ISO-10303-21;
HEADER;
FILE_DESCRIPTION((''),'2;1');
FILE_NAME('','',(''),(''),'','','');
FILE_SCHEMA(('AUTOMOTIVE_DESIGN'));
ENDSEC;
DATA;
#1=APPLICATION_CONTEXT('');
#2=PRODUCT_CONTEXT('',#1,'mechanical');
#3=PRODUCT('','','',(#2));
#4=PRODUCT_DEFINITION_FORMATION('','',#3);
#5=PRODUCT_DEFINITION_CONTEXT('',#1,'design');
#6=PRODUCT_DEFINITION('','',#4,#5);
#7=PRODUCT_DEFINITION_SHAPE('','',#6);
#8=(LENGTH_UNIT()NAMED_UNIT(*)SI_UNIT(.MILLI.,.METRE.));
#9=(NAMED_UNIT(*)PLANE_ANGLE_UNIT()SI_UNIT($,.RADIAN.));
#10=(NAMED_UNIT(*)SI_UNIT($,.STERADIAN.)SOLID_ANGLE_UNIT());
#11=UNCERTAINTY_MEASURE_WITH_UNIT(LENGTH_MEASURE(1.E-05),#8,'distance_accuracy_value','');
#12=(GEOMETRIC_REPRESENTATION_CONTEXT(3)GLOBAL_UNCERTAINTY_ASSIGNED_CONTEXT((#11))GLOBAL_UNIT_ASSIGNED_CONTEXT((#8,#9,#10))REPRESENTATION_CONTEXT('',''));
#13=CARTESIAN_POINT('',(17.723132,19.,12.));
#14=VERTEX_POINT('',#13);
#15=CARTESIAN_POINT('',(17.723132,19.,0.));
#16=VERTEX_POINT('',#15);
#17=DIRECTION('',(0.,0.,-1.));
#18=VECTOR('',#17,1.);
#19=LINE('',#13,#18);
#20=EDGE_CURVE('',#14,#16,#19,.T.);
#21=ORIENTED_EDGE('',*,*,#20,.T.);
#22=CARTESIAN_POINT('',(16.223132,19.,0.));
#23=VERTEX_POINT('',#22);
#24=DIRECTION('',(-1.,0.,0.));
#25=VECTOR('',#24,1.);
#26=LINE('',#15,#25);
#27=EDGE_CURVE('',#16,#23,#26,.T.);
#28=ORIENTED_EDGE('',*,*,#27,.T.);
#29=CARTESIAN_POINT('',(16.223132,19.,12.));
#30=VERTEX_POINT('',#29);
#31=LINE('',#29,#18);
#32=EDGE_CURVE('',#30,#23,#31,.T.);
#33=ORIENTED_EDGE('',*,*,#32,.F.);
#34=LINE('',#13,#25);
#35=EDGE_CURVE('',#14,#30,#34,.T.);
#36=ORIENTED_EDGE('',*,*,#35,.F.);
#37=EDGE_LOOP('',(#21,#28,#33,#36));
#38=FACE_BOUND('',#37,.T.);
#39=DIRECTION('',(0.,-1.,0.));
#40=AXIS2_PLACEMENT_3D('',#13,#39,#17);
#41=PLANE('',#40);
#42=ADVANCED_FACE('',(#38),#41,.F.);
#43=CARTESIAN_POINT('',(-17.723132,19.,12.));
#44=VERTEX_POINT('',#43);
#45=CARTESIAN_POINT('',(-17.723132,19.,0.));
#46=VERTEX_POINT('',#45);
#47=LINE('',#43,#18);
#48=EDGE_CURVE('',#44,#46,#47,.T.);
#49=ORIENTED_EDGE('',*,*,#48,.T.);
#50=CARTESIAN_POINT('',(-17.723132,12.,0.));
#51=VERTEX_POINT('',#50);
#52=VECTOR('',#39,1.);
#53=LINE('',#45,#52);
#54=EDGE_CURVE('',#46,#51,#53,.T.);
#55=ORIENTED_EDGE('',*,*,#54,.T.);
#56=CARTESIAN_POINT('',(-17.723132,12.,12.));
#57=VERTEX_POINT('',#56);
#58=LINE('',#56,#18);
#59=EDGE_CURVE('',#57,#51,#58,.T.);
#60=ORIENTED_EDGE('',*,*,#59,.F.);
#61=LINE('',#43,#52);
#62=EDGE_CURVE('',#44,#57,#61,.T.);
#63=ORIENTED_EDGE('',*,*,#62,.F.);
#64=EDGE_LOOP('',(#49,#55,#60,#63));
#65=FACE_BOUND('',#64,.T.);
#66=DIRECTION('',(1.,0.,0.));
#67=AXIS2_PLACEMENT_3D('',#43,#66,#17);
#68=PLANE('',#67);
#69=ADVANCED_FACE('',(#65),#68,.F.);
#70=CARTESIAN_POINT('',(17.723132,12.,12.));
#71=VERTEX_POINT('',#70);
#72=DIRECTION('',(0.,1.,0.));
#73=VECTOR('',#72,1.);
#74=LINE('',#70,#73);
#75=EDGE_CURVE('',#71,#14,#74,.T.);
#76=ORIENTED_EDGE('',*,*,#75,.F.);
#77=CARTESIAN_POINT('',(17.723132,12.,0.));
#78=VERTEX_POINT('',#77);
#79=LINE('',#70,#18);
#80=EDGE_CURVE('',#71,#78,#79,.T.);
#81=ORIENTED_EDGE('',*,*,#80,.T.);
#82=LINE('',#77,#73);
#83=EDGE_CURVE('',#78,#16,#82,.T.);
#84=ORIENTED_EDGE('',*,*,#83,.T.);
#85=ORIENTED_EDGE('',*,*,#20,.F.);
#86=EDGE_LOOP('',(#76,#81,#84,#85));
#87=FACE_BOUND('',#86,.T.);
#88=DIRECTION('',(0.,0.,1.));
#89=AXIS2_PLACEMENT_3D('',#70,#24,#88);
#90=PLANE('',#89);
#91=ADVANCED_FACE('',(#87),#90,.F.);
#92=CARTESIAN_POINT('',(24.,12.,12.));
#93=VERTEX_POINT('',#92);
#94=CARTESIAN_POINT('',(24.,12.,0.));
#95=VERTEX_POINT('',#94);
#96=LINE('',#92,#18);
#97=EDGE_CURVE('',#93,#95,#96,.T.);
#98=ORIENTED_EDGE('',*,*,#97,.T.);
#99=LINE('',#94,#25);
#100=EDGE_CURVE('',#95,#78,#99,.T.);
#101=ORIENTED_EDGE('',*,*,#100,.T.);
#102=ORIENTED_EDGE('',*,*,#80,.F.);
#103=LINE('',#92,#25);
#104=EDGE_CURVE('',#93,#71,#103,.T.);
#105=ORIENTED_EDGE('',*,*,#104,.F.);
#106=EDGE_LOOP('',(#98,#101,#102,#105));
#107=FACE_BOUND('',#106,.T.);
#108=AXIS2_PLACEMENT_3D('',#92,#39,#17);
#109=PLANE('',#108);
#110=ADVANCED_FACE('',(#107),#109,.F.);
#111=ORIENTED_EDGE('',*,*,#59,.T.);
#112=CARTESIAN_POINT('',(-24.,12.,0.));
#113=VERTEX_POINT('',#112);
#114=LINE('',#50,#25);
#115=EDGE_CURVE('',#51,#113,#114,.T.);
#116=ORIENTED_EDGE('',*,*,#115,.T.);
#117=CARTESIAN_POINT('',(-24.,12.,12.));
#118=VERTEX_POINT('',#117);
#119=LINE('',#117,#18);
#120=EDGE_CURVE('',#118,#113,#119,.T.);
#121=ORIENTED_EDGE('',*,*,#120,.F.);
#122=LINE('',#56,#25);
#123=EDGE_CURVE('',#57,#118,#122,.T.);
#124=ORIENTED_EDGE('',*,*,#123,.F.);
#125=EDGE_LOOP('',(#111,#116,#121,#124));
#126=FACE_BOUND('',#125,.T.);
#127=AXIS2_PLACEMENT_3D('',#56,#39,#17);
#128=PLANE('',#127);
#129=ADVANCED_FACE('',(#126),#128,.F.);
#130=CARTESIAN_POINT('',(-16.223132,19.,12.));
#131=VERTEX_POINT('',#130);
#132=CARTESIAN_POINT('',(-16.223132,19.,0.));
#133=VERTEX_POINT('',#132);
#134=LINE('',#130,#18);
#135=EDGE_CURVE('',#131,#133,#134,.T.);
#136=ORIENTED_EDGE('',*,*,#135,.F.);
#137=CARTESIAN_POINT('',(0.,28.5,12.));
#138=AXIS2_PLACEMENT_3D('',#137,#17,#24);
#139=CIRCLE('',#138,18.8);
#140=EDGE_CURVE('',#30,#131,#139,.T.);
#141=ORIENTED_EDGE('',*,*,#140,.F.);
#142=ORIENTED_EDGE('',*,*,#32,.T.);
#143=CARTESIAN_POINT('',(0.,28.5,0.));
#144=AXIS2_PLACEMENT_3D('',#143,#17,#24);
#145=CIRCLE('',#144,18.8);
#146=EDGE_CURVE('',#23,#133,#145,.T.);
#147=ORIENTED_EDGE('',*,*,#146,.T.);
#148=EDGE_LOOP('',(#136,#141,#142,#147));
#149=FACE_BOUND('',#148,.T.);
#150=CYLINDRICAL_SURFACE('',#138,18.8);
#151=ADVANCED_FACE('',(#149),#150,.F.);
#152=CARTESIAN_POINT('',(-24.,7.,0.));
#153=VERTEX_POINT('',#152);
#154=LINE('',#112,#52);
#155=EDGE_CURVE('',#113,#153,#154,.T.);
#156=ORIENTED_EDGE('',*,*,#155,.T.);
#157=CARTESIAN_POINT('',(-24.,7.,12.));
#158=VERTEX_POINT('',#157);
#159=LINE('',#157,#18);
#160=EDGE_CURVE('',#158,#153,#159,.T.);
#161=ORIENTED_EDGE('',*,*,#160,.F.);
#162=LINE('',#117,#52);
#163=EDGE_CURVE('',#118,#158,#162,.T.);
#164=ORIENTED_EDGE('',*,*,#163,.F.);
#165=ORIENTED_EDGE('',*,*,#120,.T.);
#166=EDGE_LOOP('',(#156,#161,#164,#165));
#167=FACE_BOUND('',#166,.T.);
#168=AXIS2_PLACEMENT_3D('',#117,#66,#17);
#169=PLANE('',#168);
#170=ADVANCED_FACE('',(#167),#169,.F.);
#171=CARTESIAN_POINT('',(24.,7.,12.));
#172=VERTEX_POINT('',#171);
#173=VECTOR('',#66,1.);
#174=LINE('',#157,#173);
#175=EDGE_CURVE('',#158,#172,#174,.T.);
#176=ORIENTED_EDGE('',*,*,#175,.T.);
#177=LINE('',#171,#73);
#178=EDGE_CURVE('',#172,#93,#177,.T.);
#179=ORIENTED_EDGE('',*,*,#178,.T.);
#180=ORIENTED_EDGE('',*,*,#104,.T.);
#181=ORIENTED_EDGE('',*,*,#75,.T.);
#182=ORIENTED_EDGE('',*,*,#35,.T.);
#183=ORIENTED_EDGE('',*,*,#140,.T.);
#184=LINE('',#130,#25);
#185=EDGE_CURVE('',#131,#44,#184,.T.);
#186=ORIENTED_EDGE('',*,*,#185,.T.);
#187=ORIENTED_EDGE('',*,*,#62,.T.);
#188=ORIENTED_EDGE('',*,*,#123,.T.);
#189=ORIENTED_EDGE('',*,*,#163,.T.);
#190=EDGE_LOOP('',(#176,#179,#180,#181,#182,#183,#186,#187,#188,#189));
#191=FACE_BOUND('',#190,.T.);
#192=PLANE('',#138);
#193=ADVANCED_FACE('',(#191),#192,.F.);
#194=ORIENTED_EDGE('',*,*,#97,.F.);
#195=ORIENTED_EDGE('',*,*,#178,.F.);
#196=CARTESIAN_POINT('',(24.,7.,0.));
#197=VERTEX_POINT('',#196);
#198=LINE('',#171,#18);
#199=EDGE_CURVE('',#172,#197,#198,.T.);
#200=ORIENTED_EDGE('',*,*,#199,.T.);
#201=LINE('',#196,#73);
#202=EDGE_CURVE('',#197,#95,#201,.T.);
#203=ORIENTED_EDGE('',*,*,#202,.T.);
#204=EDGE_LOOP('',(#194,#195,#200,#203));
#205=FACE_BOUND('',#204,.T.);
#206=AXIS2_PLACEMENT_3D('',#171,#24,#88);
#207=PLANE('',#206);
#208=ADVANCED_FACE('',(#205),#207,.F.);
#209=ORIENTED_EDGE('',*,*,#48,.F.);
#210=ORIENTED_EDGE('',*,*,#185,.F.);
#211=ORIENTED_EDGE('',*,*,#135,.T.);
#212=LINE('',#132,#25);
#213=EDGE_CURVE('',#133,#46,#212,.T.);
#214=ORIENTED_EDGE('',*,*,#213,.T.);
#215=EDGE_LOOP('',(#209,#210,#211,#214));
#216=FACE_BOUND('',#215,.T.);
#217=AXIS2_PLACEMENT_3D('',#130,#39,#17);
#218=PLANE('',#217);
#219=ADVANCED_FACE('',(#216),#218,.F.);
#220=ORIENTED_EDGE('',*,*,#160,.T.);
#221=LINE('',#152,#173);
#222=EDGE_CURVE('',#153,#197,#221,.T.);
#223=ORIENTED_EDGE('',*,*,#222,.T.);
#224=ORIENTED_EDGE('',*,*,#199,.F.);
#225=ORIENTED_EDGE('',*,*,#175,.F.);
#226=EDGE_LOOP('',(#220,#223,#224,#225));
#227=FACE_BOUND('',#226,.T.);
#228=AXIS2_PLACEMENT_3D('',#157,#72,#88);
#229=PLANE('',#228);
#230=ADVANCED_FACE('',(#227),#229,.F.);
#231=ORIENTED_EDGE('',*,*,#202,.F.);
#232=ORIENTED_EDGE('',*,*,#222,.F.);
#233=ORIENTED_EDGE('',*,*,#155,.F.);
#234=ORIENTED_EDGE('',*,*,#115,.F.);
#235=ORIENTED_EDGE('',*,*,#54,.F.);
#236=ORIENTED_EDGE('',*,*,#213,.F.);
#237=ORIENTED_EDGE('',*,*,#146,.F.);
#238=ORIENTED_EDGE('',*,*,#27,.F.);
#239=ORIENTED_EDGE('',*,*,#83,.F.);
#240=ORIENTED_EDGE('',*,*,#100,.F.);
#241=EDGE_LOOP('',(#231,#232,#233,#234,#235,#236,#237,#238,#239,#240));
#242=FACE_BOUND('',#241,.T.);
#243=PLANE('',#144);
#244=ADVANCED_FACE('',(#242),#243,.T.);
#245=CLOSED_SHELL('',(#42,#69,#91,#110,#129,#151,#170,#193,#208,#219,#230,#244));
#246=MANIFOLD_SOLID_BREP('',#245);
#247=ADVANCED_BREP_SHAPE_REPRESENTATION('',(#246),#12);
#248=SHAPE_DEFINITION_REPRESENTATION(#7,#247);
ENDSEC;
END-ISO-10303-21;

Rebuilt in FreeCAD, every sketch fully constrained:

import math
import FreeCAD as App
import Part
import Sketcher
from FreeCAD import Vector
Q = App.Units.Quantity

doc = App.newDocument("Part")
body = doc.addObject("PartDesign::Body", "Body")

# Sketch on XY plane
sketch1 = body.newObject("Sketcher::SketchObject", "Sketch")
sketch1.AttachmentSupport = (doc.getObject("XY_Plane"), [""])
sketch1.MapMode = "FlatFace"
sketch1.addGeometry([
    Part.LineSegment(Vector(-24, 7, 0), Vector(24, 7, 0)),  # 0
    Part.LineSegment(Vector(24, 7, 0), Vector(24, 12, 0)),  # 1
    Part.LineSegment(Vector(24, 12, 0), Vector(17.7, 12, 0)),  # 2
    Part.LineSegment(Vector(17.7, 12, 0), Vector(17.7, 19, 0)),  # 3
    Part.LineSegment(Vector(17.7, 19, 0), Vector(16.2, 19, 0)),  # 4
    Part.ArcOfCircle(Part.Circle(Vector(0, 28.5, 0), Vector(0, 0, 1), 18.8), math.radians(-150), math.radians(-30)),  # 5
    Part.LineSegment(Vector(-16.2, 19, 0), Vector(-17.7, 19, 0)),  # 6
    Part.LineSegment(Vector(-17.7, 19, 0), Vector(-17.7, 12, 0)),  # 7
    Part.LineSegment(Vector(-17.7, 12, 0), Vector(-24, 12, 0)),  # 8
    Part.LineSegment(Vector(-24, 12, 0), Vector(-24, 7, 0)),  # 9
], False)
sketch1.addConstraint([
    Sketcher.Constraint("Coincident", 0, 2, 1, 1),
    Sketcher.Constraint("Coincident", 1, 2, 2, 1),
    Sketcher.Constraint("Coincident", 2, 2, 3, 1),
    Sketcher.Constraint("Coincident", 3, 2, 4, 1),
    Sketcher.Constraint("Coincident", 4, 2, 5, 2),
    Sketcher.Constraint("Coincident", 5, 1, 6, 1),
    Sketcher.Constraint("Coincident", 6, 2, 7, 1),
    Sketcher.Constraint("Coincident", 7, 2, 8, 1),
    Sketcher.Constraint("Coincident", 8, 2, 9, 1),
    Sketcher.Constraint("Coincident", 9, 2, 0, 1),
    Sketcher.Constraint("Horizontal", 0),
    Sketcher.Constraint("Vertical", 1),
    Sketcher.Constraint("Horizontal", 2),
    Sketcher.Constraint("Vertical", 3),
    Sketcher.Constraint("Horizontal", 4),
    Sketcher.Constraint("Horizontal", 6),
    Sketcher.Constraint("Vertical", 7),
    Sketcher.Constraint("Horizontal", 8),
    Sketcher.Constraint("Vertical", 9),
    Sketcher.Constraint("Symmetric", 4, 2, 5, 1, -2),
    Sketcher.Constraint("Symmetric", 2, 2, 7, 2, -2),
    Sketcher.Constraint("Equal", 2, 8),
    Sketcher.Constraint("Radius", 5, Q("18.8 mm")),
    Sketcher.Constraint("DistanceX", 0, 1, 0, 2, Q("48 mm")),
    Sketcher.Constraint("DistanceY", 1, 1, 1, 2, Q("5 mm")),
    Sketcher.Constraint("DistanceY", 3, 1, 3, 2, Q("7 mm")),
    Sketcher.Constraint("DistanceX", 4, 2, 4, 1, Q("1.5 mm")),
    Sketcher.Constraint("DistanceY", -1, 1, 0, 2, Q("7 mm")),
    Sketcher.Constraint("DistanceY", -1, 1, 5, 3, Q("28.5 mm")),
])
pad1 = body.newObject("PartDesign::Pad", "Pad")
pad1.Profile = sketch1
pad1.Length = 12

doc.recompute()
